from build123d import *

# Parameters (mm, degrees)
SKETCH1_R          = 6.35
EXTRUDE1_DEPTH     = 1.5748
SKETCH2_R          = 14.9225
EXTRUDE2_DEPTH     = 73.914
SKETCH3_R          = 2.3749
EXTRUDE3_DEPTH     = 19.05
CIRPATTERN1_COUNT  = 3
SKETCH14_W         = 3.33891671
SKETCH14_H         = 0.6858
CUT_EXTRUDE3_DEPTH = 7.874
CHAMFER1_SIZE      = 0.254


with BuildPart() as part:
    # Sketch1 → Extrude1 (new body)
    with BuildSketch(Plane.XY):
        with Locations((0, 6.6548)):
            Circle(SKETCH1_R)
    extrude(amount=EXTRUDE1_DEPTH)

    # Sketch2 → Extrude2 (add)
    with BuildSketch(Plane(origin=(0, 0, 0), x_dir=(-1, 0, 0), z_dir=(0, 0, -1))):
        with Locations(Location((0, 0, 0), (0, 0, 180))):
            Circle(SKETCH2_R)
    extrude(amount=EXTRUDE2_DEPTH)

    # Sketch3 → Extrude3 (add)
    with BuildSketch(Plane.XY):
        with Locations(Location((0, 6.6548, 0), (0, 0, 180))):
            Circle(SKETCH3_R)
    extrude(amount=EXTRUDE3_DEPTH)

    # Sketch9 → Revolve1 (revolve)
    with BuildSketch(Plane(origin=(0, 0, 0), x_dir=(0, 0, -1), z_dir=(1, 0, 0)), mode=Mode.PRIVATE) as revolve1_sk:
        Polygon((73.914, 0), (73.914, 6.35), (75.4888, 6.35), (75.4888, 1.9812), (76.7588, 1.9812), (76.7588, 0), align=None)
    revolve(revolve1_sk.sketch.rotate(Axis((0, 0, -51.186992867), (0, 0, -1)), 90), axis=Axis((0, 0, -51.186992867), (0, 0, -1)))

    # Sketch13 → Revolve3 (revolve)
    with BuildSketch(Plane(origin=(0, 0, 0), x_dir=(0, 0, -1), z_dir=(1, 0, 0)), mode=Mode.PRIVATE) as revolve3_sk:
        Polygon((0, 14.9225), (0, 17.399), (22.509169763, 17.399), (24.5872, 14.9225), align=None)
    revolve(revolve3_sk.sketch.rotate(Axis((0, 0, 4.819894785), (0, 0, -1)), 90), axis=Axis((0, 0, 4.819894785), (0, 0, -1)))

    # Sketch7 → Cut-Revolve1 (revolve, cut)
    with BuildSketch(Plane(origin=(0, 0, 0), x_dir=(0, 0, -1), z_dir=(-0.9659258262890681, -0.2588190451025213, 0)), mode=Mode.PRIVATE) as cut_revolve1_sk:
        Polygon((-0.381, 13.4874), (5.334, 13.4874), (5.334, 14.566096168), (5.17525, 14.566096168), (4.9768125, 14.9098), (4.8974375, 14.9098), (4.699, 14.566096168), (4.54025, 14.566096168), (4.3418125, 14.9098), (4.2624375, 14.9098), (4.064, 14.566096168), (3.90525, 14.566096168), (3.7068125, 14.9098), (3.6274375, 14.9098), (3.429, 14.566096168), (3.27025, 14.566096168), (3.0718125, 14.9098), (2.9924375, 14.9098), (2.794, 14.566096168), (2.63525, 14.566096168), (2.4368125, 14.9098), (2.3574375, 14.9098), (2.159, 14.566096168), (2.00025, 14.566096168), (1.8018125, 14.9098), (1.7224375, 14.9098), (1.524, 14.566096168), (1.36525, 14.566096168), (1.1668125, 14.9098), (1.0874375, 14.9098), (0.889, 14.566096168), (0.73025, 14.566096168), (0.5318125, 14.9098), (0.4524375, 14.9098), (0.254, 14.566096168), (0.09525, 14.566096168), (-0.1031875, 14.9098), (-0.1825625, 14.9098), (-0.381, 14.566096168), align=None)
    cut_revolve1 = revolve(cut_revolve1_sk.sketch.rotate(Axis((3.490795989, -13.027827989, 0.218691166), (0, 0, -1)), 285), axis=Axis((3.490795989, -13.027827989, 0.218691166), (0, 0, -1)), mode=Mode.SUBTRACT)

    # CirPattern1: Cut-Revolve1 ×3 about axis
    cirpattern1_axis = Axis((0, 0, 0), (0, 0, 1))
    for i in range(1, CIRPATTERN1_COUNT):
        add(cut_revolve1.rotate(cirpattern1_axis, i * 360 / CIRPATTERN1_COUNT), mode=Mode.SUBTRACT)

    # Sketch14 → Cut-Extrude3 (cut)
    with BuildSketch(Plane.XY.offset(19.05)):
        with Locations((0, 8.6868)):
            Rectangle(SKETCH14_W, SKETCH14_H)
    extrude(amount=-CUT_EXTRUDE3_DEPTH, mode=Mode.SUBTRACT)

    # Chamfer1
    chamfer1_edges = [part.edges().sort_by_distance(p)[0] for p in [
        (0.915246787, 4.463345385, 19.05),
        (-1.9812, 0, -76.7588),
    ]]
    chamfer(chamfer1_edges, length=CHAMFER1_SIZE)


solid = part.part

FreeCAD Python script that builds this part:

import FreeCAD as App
import Part
import Sketcher
from FreeCAD import Vector
Q = App.Units.Quantity


def edges_at(feature, points):
    """Names of the edges that pass closest to the given points."""
    edges = feature.Shape.Edges
    near = lambda p: min(range(len(edges)), key=lambda i: edges[i].distToShape(Part.Vertex(*p))[0])
    return sorted({f"Edge{near(p) + 1}" for p in points})


def add_polygon(sketch, points):
    """Adds a closed chain of lines whose ends are joined by coincident constraints."""
    first, n = sketch.GeometryCount, len(points)
    for a, b in zip(points, points[1:] + points[:1]):
        sketch.addGeometry(Part.LineSegment(App.Vector(*a, 0), App.Vector(*b, 0)), False)
    for i in range(n):
        sketch.addConstraint(Sketcher.Constraint("Coincident", first + i, 2, first + (i + 1) % n, 1))

doc = App.newDocument("Part")
body = doc.addObject("PartDesign::Body", "Body")

# Sketch on XY plane
sketch1 = doc.addObject("Sketcher::SketchObject", "Sketch")
body.addObject(sketch1)
sketch1.AttachmentSupport = (doc.XY_Plane, [""])
sketch1.MapMode = "FlatFace"
sketch1.addGeometry(Part.Circle(Vector(0, 7, 0), Vector(0, 0, 1), 6), False)
sketch1.addConstraint([
    Sketcher.Constraint("PointOnObject", 0, 3, -2),
    Sketcher.Constraint("Diameter", 0, Q("0.5 in")),
    Sketcher.Constraint("DistanceY", -1, 1, 0, 3, Q("0.262 in")),
])
pad1 = doc.addObject("PartDesign::Pad", "Pad")
body.addObject(pad1)
pad1.Profile = sketch1
pad1.Length = Q("0.062 in")

# Sketch on XY plane
sketch2 = doc.addObject("Sketcher::SketchObject", "Sketch001")
body.addObject(sketch2)
sketch2.AttachmentSupport = (doc.XY_Plane, [""])
sketch2.MapMode = "FlatFace"
sketch2.addGeometry(Part.Circle(Vector(0, 0, 0), Vector(0, 0, 1), 15), False)
sketch2.addConstraint([
    Sketcher.Constraint("Coincident", 0, 3, -1, 1),
    Sketcher.Constraint("Diameter", 0, Q("1.175 in")),
])
pad2 = doc.addObject("PartDesign::Pad", "Pad001")
body.addObject(pad2)
pad2.Profile = sketch2
pad2.Length = Q("2.91 in")
pad2.Reversed = True

# Sketch on XY plane
sketch3 = doc.addObject("Sketcher::SketchObject", "Sketch002")
body.addObject(sketch3)
sketch3.AttachmentSupport = (doc.XY_Plane, [""])
sketch3.MapMode = "FlatFace"
sketch3.addGeometry(Part.Circle(Vector(0, 6.7, 0), Vector(0, 0, 1), 2.4), False)
sketch3.addConstraint([
    Sketcher.Constraint("PointOnObject", 0, 3, -2),
    Sketcher.Constraint("Diameter", 0, Q("0.187 in")),
    Sketcher.Constraint("DistanceY", -1, 1, 0, 3, Q("0.262 in")),
])
pad3 = doc.addObject("PartDesign::Pad", "Pad002")
body.addObject(pad3)
pad3.Profile = sketch3
pad3.Length = Q("0.75 in")

# Sketch on YZ plane
sketch4 = doc.addObject("Sketcher::SketchObject", "Sketch003")
body.addObject(sketch4)
sketch4.AttachmentSupport = (doc.YZ_Plane, [""])
sketch4.MapMode = "FlatFace"
add_polygon(sketch4, [(6.3, -73.9), (0, -73.9), (0, -76.8), (2, -76.8), (2, -75.5), (6.3, -75.5)])  # lines 0-5
sketch4.addConstraint([
    Sketcher.Constraint("Horizontal", 0),
    Sketcher.Constraint("Vertical", 1),
    Sketcher.Constraint("Horizontal", 2),
    Sketcher.Constraint("Vertical", 3),
    Sketcher.Constraint("Horizontal", 4),
    Sketcher.Constraint("Vertical", 5),
    Sketcher.Constraint("PointOnObject", 0, 2, -2),
    Sketcher.Constraint("DistanceX", 0, 2, 0, 1, Q("0.25 in")),
    Sketcher.Constraint("DistanceY", 3, 1, 3, 2, Q("0.05 in")),
    Sketcher.Constraint("DistanceX", 2, 1, 2, 2, Q("0.078 in")),
    Sketcher.Constraint("DistanceY", 1, 2, 1, 1, Q("0.112 in")),
    Sketcher.Constraint("DistanceY", 0, 2, -1, 1, Q("2.91 in")),
])
revolution = doc.addObject("PartDesign::Revolution", "Revolution")
body.addObject(revolution)
revolution.Profile = sketch4
revolution.ReferenceAxis = (sketch4, ["V_Axis"])
revolution.Angle = 360

# Sketch on YZ plane
sketch5 = doc.addObject("Sketcher::SketchObject", "Sketch004")
body.addObject(sketch5)
sketch5.AttachmentSupport = (doc.YZ_Plane, [""])
sketch5.MapMode = "FlatFace"
add_polygon(sketch5, [(17.4, 0), (14.9, 0), (14.9, -24.6), (17.4, -22.5)])  # lines 0-3
sketch5.addConstraint([
    Sketcher.Constraint("Horizontal", 0),
    Sketcher.Constraint("Vertical", 1),
    Sketcher.Constraint("Vertical", 3),
    Sketcher.Constraint("PointOnObject", 0, 2, -1),
    Sketcher.Constraint("Angle", 2, Q("40 deg")),
    Sketcher.Constraint("DistanceY", 1, 2, 1, 1, Q("0.968 in")),
    Sketcher.Constraint("DistanceX", 0, 2, 0, 1, Q("0.0975 in")),
    Sketcher.Constraint("DistanceX", -1, 1, 2, 2, Q("0.685 in")),
])
revolution2 = doc.addObject("PartDesign::Revolution", "Revolution001")
body.addObject(revolution2)
revolution2.Profile = sketch5
revolution2.ReferenceAxis = (sketch5, ["V_Axis"])
revolution2.Angle = 360

# Sketch on an angled plane
sketch6 = doc.addObject("Sketcher::SketchObject", "Sketch005")
body.addObject(sketch6)
sketch6.Placement = App.Placement(Vector(0, 0, 0), App.Rotation(Vector(0, 0, -1), Vector(0.258819045, -0.965925826, 0), Vector(-0.965925826, -0.258819045, 0), "ZXY"))
add_polygon(sketch6, [(-0.38, 13.49), (5.33, 13.49), (5.33, 14.57), (5.18, 14.57), (4.98, 14.91), (4.9, 14.91), (4.7, 14.57), (4.54, 14.57), (4.34, 14.91), (4.26, 14.91), (4.06, 14.57), (3.91, 14.57), (3.71, 14.91), (3.63, 14.91), (3.43, 14.57), (3.27, 14.57), (3.07, 14.91), (2.99, 14.91), (2.79, 14.57), (2.64, 14.57), (2.44, 14.91), (2.36, 14.91), (2.16, 14.57), (2, 14.57), (1.8, 14.91), (1.72, 14.91), (1.52, 14.57), (1.37, 14.57), (1.17, 14.91), (1.09, 14.91), (0.89, 14.57), (0.73, 14.57), (0.53, 14.91), (0.45, 14.91), (0.25, 14.57), (0.1, 14.57), (-0.1, 14.91), (-0.18, 14.91), (-0.38, 14.57)])  # lines 0-38
sketch6.addGeometry(Part.LineSegment(Vector(-0.38, 13.49, 0), Vector(5.33, 13.49, 0)), True)  # axis
sketch6.addConstraint([
    Sketcher.Constraint("Horizontal", 0),
    Sketcher.Constraint("Vertical", 1),
    Sketcher.Constraint("Horizontal", 2),
    Sketcher.Constraint("Horizontal", 4),
    Sketcher.Constraint("Horizontal", 6),
    Sketcher.Constraint("Horizontal", 8),
    Sketcher.Constraint("Horizontal", 10),
    Sketcher.Constraint("Horizontal", 12),
    Sketcher.Constraint("Horizontal", 14),
    Sketcher.Constraint("Horizontal", 16),
    Sketcher.Constraint("Horizontal", 18),
    Sketcher.Constraint("Horizontal", 20),
    Sketcher.Constraint("Horizontal", 22),
    Sketcher.Constraint("Horizontal", 24),
    Sketcher.Constraint("Horizontal", 26),
    Sketcher.Constraint("Horizontal", 28),
    Sketcher.Constraint("Horizontal", 30),
    Sketcher.Constraint("Horizontal", 32),
    Sketcher.Constraint("Horizontal", 34),
    Sketcher.Constraint("Horizontal", 36),
    Sketcher.Constraint("Vertical", 38),
    Sketcher.Constraint("Horizontal", 39),
    Sketcher.Constraint("Coincident", 39, 1, 38, 2),
    Sketcher.Constraint("Parallel", 3, 7),
    Sketcher.Constraint("Parallel", 5, 9),
    Sketcher.Constraint("Parallel", 7, 11),
    Sketcher.Constraint("Parallel", 9, 13),
    Sketcher.Constraint("Parallel", 11, 15),
    Sketcher.Constraint("Parallel", 13, 17),
    Sketcher.Constraint("Parallel", 15, 19),
    Sketcher.Constraint("Parallel", 17, 21),
    Sketcher.Constraint("Parallel", 19, 23),
    Sketcher.Constraint("Parallel", 21, 25),
    Sketcher.Constraint("Parallel", 23, 27),
    Sketcher.Constraint("Parallel", 25, 29),
    Sketcher.Constraint("Parallel", 27, 31),
    Sketcher.Constraint("Parallel", 29, 33),
    Sketcher.Constraint("Parallel", 31, 35),
    Sketcher.Constraint("Parallel", 33, 37),
    Sketcher.Constraint("Horizontal", 2, 2, 5, 2),
    Sketcher.Constraint("Horizontal", 4, 2, 7, 2),
    Sketcher.Constraint("Horizontal", 6, 2, 9, 2),
    Sketcher.Constraint("Horizontal", 8, 2, 11, 2),
    Sketcher.Constraint("Horizontal", 10, 2, 13, 2),
    Sketcher.Constraint("Horizontal", 12, 2, 15, 2),
    Sketcher.Constraint("Horizontal", 14, 2, 17, 2),
    Sketcher.Constraint("Horizontal", 16, 2, 19, 2),
    Sketcher.Constraint("Horizontal", 18, 2, 21, 2),
    Sketcher.Constraint("Horizontal", 20, 2, 23, 2),
    Sketcher.Constraint("Horizontal", 22, 2, 25, 2),
    Sketcher.Constraint("Horizontal", 24, 2, 27, 2),
    Sketcher.Constraint("Horizontal", 26, 2, 29, 2),
    Sketcher.Constraint("Horizontal", 28, 2, 31, 2),
    Sketcher.Constraint("Horizontal", 30, 2, 33, 2),
    Sketcher.Constraint("Horizontal", 32, 2, 35, 2),
    Sketcher.Constraint("Horizontal", 34, 2, 37, 2),
    Sketcher.Constraint("Vertical", 1, 2, 39, 2),
    Sketcher.Constraint("Equal", 2, 6),
    Sketcher.Constraint("Equal", 4, 8),
    Sketcher.Constraint("Equal", 6, 10),
    Sketcher.Constraint("Equal", 8, 12),
    Sketcher.Constraint("Equal", 10, 14),
    Sketcher.Constraint("Equal", 12, 16),
    Sketcher.Constraint("Equal", 14, 18),
    Sketcher.Constraint("Equal", 16, 20),
    Sketcher.Constraint("Equal", 18, 22),
    Sketcher.Constraint("Equal", 20, 24),
    Sketcher.Constraint("Equal", 22, 26),
    Sketcher.Constraint("Equal", 24, 28),
    Sketcher.Constraint("Equal", 26, 30),
    Sketcher.Constraint("Equal", 28, 32),
    Sketcher.Constraint("Equal", 30, 34),
    Sketcher.Constraint("Equal", 32, 36),
    Sketcher.Constraint("Equal", 3, 5),
    Sketcher.Constraint("Angle", 3, Q("120 deg")),
    Sketcher.Constraint("DistanceX", 0, 1, 0, 2, Q("0.225 in")),
    Sketcher.Constraint("DistanceX", -1, 1, 0, 2, Q("0.21 in")),
    Sketcher.Constraint("Distance", 3, Q("0.015625 in")),
    Sketcher.Constraint("DistanceY", -1, 1, 0, 2, Q("0.531 in")),
    Sketcher.Constraint("DistanceY", -1, 1, 3, 2, Q("0.587 in")),
    Sketcher.Constraint("DistanceX", 6, 2, 1, 2, Q("0.03125 in")),
])
groove = doc.addObject("PartDesign::Groove", "Groove")
body.addObject(groove)
groove.Profile = sketch6
groove.ReferenceAxis = (sketch6, ["Axis0"])
groove.Angle = 360
doc.recompute()

polarpattern = doc.addObject("PartDesign::PolarPattern", "PolarPattern")
body.addObject(polarpattern)
polarpattern.Originals = [groove]
polarpattern.Axis = (doc.Z_Axis, [""])
polarpattern.Angle = 360
polarpattern.Occurrences = 3
body.Tip = polarpattern

# Sketch on XY plane
sketch7 = doc.addObject("Sketcher::SketchObject", "Sketch006")
body.addObject(sketch7)
sketch7.AttachmentSupport = (doc.XY_Plane, [""])
sketch7.MapMode = "FlatFace"
sketch7.AttachmentOffset = App.Placement(Vector(0, 0, 0.75 * 25.4), App.Rotation())
add_polygon(sketch7, [(-1.7, 9), (-1.7, 8.3), (1.7, 8.3), (1.7, 9)])  # lines 0-3
sketch7.addConstraint([
    Sketcher.Constraint("Vertical", 0),
    Sketcher.Constraint("Horizontal", 1),
    Sketcher.Constraint("Vertical", 2),
    Sketcher.Constraint("Horizontal", 3),
    Sketcher.Constraint("DistanceY", 0, 2, 0, 1, Q("0.027 in")),
    Sketcher.Constraint("DistanceY", -1, 1, 0, 2, Q("0.3285 in")),
    Sketcher.Constraint("DistanceX", 1, 1, 1, 2, 3.338917),
    Sketcher.Constraint("DistanceX", 0, 2, -1, 1, 1.669458),
])
pocket1 = doc.addObject("PartDesign::Pocket", "Pocket")
body.addObject(pocket1)
pocket1.Profile = sketch7
pocket1.Length = Q("0.31 in")
doc.recompute()

chamfer = doc.addObject("PartDesign::Chamfer", "Chamfer")
body.addObject(chamfer)
chamfer.Base = (pocket1, edges_at(pocket1, [(0.915, 4.463, 19.05), (-1.981, 0, -76.759)]))
chamfer.Size = Q("0.01 in")

doc.recompute()
